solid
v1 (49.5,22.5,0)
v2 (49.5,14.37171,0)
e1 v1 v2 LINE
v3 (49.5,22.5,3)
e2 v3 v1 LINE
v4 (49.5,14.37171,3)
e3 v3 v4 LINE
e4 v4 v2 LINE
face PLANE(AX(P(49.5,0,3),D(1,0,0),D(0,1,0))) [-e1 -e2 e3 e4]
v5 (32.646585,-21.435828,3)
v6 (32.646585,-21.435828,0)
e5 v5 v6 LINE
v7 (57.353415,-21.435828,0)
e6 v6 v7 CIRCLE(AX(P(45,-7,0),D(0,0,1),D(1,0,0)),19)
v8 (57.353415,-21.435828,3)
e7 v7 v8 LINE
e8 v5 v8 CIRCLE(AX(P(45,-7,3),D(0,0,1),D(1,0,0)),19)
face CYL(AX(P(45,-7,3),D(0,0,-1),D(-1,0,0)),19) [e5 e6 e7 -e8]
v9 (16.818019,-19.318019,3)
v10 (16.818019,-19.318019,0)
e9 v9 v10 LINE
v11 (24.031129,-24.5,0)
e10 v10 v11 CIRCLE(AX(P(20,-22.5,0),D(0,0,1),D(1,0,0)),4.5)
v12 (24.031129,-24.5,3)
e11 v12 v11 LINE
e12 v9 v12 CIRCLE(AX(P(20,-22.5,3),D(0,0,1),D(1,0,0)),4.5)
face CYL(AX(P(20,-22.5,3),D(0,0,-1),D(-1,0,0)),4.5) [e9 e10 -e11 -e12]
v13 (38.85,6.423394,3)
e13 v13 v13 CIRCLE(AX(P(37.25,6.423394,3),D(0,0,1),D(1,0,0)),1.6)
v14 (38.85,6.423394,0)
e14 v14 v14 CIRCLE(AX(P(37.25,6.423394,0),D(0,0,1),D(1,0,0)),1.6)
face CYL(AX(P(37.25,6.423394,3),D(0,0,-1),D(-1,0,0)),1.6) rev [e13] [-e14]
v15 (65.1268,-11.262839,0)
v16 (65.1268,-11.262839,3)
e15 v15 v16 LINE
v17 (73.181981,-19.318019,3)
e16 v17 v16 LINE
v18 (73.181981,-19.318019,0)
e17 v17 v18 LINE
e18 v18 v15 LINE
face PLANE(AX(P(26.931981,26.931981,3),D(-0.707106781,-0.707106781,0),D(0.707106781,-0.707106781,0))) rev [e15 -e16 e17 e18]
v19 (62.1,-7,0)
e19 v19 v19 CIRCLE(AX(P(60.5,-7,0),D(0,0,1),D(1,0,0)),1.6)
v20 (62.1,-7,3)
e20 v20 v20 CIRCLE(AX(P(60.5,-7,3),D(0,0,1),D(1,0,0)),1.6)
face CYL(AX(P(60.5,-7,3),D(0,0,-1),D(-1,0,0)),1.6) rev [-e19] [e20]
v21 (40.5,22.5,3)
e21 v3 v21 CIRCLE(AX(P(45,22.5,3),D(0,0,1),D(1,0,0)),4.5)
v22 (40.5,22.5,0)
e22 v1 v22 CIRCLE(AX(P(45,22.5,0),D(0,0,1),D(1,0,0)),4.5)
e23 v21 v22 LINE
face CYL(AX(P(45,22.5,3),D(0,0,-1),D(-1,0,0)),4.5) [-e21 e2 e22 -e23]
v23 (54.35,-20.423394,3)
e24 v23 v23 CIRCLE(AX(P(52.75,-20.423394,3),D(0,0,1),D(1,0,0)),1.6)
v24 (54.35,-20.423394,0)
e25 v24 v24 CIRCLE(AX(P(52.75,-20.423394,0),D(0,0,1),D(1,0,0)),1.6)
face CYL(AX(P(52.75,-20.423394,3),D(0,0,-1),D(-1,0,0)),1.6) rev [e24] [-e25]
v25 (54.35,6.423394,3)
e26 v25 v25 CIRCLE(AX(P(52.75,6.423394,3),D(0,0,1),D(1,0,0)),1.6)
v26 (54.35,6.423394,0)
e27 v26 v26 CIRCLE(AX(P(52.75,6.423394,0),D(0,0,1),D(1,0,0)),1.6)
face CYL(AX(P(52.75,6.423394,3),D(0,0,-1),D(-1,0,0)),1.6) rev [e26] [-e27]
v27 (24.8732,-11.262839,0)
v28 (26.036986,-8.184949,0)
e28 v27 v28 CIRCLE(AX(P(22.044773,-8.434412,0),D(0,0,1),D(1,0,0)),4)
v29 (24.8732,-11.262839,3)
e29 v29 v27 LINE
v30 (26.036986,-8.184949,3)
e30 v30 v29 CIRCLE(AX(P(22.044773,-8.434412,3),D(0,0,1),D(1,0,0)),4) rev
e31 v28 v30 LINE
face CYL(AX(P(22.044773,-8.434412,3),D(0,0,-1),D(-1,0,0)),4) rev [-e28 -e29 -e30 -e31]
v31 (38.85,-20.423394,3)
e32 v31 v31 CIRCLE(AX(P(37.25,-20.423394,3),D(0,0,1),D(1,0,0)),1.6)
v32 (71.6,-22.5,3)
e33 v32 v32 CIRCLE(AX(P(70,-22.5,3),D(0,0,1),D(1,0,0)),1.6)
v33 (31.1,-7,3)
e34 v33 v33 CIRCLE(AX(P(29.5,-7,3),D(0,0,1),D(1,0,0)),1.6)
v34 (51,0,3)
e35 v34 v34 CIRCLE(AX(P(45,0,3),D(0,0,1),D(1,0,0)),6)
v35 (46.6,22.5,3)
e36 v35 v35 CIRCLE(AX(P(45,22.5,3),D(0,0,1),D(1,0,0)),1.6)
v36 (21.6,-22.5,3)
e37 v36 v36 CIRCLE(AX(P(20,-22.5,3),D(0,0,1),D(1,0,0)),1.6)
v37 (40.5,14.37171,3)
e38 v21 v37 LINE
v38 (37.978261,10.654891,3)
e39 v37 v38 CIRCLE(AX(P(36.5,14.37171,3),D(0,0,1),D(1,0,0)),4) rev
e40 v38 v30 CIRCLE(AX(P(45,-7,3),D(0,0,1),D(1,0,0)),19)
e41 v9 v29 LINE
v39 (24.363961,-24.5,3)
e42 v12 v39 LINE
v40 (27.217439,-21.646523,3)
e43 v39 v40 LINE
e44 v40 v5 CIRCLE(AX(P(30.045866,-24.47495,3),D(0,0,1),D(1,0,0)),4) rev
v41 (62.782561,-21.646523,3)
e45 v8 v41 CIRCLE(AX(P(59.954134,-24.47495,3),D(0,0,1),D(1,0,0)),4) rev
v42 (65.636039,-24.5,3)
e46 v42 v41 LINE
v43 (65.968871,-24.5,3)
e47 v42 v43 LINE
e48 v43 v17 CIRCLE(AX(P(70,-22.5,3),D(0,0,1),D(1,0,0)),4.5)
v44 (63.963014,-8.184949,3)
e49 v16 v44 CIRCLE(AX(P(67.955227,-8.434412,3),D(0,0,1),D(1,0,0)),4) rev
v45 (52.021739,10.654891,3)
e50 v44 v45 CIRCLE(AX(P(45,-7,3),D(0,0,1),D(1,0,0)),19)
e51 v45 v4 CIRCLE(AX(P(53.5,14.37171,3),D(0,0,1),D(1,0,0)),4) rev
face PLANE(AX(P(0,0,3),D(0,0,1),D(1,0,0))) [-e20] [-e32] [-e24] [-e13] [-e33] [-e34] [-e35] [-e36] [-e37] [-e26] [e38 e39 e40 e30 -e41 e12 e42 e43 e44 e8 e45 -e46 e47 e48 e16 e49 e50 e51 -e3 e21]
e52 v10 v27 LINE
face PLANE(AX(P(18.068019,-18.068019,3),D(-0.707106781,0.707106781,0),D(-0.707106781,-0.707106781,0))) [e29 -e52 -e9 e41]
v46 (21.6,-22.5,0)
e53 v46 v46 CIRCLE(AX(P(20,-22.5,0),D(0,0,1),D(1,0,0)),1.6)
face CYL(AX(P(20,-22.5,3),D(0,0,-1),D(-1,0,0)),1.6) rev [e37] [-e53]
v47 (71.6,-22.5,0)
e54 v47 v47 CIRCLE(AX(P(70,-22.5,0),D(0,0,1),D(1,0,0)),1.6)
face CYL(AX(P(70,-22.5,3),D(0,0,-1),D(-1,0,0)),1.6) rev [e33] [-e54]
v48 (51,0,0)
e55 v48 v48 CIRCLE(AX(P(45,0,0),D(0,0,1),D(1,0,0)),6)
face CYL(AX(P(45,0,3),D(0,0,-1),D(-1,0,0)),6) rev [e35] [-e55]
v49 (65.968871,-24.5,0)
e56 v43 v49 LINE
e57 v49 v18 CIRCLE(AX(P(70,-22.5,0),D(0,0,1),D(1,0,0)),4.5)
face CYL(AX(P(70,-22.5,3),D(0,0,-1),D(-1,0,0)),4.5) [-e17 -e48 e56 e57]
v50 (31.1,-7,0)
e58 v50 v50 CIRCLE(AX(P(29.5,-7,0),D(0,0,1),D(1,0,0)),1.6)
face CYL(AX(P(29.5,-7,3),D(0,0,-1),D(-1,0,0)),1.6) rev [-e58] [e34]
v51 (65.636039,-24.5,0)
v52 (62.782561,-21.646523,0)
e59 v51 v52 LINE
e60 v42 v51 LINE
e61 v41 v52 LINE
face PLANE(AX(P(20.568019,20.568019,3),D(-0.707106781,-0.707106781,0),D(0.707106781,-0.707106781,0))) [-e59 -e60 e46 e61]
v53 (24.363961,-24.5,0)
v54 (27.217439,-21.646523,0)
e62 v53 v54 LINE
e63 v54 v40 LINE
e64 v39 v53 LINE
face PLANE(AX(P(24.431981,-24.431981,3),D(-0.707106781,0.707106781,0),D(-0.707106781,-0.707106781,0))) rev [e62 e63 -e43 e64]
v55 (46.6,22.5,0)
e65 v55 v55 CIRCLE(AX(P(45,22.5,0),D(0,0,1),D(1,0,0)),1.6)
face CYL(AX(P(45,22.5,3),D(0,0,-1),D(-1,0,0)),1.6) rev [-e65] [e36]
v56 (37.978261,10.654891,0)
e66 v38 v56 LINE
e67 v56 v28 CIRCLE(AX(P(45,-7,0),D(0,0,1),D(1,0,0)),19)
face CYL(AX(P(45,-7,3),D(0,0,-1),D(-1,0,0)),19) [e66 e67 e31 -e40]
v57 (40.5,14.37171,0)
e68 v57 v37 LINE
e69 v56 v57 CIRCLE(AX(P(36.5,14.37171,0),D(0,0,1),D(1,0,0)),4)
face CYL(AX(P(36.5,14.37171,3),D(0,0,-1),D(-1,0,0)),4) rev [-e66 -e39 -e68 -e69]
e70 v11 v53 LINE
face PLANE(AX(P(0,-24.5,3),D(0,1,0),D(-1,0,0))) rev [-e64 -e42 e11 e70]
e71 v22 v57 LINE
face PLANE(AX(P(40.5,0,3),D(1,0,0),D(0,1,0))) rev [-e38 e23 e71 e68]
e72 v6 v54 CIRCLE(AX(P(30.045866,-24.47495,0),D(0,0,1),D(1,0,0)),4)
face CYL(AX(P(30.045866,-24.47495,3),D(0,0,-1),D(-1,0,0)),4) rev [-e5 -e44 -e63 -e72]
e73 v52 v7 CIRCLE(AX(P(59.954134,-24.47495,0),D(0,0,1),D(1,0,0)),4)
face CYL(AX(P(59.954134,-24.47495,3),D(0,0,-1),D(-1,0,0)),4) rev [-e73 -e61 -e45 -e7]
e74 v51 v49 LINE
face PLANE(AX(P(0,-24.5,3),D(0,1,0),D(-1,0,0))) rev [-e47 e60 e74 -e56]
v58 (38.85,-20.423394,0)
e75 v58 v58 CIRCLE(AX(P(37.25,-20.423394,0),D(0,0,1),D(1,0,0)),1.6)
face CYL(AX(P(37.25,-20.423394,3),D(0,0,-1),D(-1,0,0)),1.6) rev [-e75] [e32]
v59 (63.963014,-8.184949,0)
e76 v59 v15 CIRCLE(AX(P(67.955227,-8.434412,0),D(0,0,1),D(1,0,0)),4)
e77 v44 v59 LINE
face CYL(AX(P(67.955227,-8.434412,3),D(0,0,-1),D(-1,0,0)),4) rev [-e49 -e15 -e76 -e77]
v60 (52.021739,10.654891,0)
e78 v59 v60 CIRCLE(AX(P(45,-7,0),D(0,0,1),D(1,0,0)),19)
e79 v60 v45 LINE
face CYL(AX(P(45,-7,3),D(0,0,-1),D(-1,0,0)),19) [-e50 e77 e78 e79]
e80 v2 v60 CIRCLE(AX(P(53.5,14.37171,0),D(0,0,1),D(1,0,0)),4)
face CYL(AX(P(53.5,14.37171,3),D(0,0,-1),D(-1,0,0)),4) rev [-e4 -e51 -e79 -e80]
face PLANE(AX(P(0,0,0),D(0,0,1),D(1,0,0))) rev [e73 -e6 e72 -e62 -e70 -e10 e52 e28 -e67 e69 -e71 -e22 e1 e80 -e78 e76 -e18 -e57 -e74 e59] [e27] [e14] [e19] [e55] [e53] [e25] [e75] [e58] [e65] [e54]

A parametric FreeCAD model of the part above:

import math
import FreeCAD as App
import Part
import Sketcher
from FreeCAD import Vector


def edges_at(feature, points):
    """Names of the edges that pass closest to the given points."""
    edges = feature.Shape.Edges
    near = lambda p: min(range(len(edges)), key=lambda i: edges[i].distToShape(Part.Vertex(*p))[0])
    return sorted({f"Edge{near(p) + 1}" for p in points})

doc = App.newDocument("Part")
body = doc.addObject("PartDesign::Body", "Body")

# Sketch on XY plane
sketch1 = doc.addObject("Sketcher::SketchObject", "Sketch")
body.addObject(sketch1)
sketch1.AttachmentSupport = (doc.XY_Plane, [""])
sketch1.MapMode = "FlatFace"
sketch1.addGeometry(Part.ArcOfCircle(Part.Circle(Vector(45, -7, 0), Vector(0, 0, 1), 19), math.radians(0), math.radians(76)), False)
sketch1.addGeometry(Part.LineSegment(Vector(49.5, 11.46, 0), Vector(49.5, 22.5, 0)), False)
sketch1.addGeometry(Part.ArcOfCircle(Part.Circle(Vector(45, 22.5, 0), Vector(0, 0, 1), 4.5), math.radians(0), math.radians(26)), False)
sketch1.addGeometry(Part.ArcOfCircle(Part.Circle(Vector(45, 22.5, 0), Vector(0, 0, 1), 4.5), math.radians(26), math.radians(154)), False)
sketch1.addGeometry(Part.ArcOfCircle(Part.Circle(Vector(45, 22.5, 0), Vector(0, 0, 1), 4.5), math.radians(154), math.radians(180)), False)
sketch1.addGeometry(Part.LineSegment(Vector(40.5, 22.5, 0), Vector(40.5, 11.46, 0)), False)
sketch1.addGeometry(Part.ArcOfCircle(Part.Circle(Vector(45, -7, 0), Vector(0, 0, 1), 19), math.radians(104), math.radians(189)), False)
sketch1.addGeometry(Part.LineSegment(Vector(26.22, -9.91, 0), Vector(16.82, -19.32, 0)), False)
sketch1.addGeometry(Part.ArcOfCircle(Part.Circle(Vector(20, -22.5, 0), Vector(0, 0, 1), 4.5), math.radians(135), math.radians(180)), False)
sketch1.addGeometry(Part.ArcOfCircle(Part.Circle(Vector(20, -22.5, 0), Vector(0, 0, 1), 4.5), math.radians(180), math.radians(206)), False)
sketch1.addGeometry(Part.ArcOfCircle(Part.Circle(Vector(20, -22.5, 0), Vector(0, 0, 1), 4.5), math.radians(-154), math.radians(-45)), False)
sketch1.addGeometry(Part.ArcOfCircle(Part.Circle(Vector(20, -22.5, 0), Vector(0, 0, 1), 4.5), math.radians(-45), math.radians(-26.39)), False)
sketch1.addGeometry(Part.LineSegment(Vector(24.03, -24.5, 0), Vector(24.36, -24.5, 0)), False)
sketch1.addGeometry(Part.LineSegment(Vector(24.36, -24.5, 0), Vector(30.09, -18.78, 0)), False)
sketch1.addGeometry(Part.ArcOfCircle(Part.Circle(Vector(45, -7, 0), Vector(0, 0, 1), 19), math.radians(-142), math.radians(-113)), False)
sketch1.addGeometry(Part.ArcOfCircle(Part.Circle(Vector(45, -7, 0), Vector(0, 0, 1), 19), math.radians(-113), math.radians(-67)), False)
sketch1.addGeometry(Part.ArcOfCircle(Part.Circle(Vector(45, -7, 0), Vector(0, 0, 1), 19), math.radians(-67), math.radians(-38)), False)
sketch1.addGeometry(Part.LineSegment(Vector(59.91, -18.78, 0), Vector(65.64, -24.5, 0)), False)
sketch1.addGeometry(Part.LineSegment(Vector(65.64, -24.5, 0), Vector(65.97, -24.5, 0)), False)
sketch1.addGeometry(Part.ArcOfCircle(Part.Circle(Vector(70, -22.5, 0), Vector(0, 0, 1), 4.5), math.radians(-153.61), math.radians(-135)), False)
sketch1.addGeometry(Part.ArcOfCircle(Part.Circle(Vector(70, -22.5, 0), Vector(0, 0, 1), 4.5), math.radians(-135), math.radians(-26)), False)
sketch1.addGeometry(Part.ArcOfCircle(Part.Circle(Vector(70, -22.5, 0), Vector(0, 0, 1), 4.5), math.radians(-26), math.radians(0)), False)
sketch1.addGeometry(Part.ArcOfCircle(Part.Circle(Vector(70, -22.5, 0), Vector(0, 0, 1), 4.5), math.radians(0), math.radians(45)), False)
sketch1.addGeometry(Part.LineSegment(Vector(73.18, -19.32, 0), Vector(63.78, -9.91, 0)), False)
sketch1.addGeometry(Part.ArcOfCircle(Part.Circle(Vector(45, -7, 0), Vector(0, 0, 1), 19), math.radians(-8.81), math.radians(0)), False)
sketch1.addGeometry(Part.Circle(Vector(37.25, -20.42, 0), Vector(0, 0, 1), 1.6), False)
sketch1.addGeometry(Part.Circle(Vector(52.75, -20.42, 0), Vector(0, 0, 1), 1.6), False)
sketch1.addGeometry(Part.Circle(Vector(29.5, -7, 0), Vector(0, 0, 1), 1.6), False)
sketch1.addGeometry(Part.Circle(Vector(37.25, 6.42, 0), Vector(0, 0, 1), 1.6), False)
sketch1.addGeometry(Part.Circle(Vector(45, 0, 0), Vector(0, 0, 1), 6), False)
sketch1.addGeometry(Part.Circle(Vector(60.5, -7, 0), Vector(0, 0, 1), 1.6), False)
sketch1.addGeometry(Part.Circle(Vector(52.75, 6.42, 0), Vector(0, 0, 1), 1.6), False)
sketch1.addGeometry(Part.Circle(Vector(45, 22.5, 0), Vector(0, 0, 1), 1.6), False)
sketch1.addGeometry(Part.Circle(Vector(70, -22.5, 0), Vector(0, 0, 1), 1.6), False)
sketch1.addGeometry(Part.Circle(Vector(20, -22.5, 0), Vector(0, 0, 1), 1.6), False)
sketch1.addConstraint(Sketcher.Constraint("Coincident", 0, 2, 1, 1))
sketch1.addConstraint(Sketcher.Constraint("Tangent", 1, 2, 2, 1))
sketch1.addConstraint(Sketcher.Constraint("Tangent", 2, 2, 3, 1))
sketch1.addConstraint(Sketcher.Constraint("Tangent", 3, 2, 4, 1))
sketch1.addConstraint(Sketcher.Constraint("Tangent", 4, 2, 5, 1))
sketch1.addConstraint(Sketcher.Constraint("Coincident", 5, 2, 6, 1))
sketch1.addConstraint(Sketcher.Constraint("Coincident", 6, 2, 7, 1))
sketch1.addConstraint(Sketcher.Constraint("Tangent", 7, 2, 8, 1))
sketch1.addConstraint(Sketcher.Constraint("Tangent", 8, 2, 9, 1))
sketch1.addConstraint(Sketcher.Constraint("Tangent", 9, 2, 10, 1))
sketch1.addConstraint(Sketcher.Constraint("Tangent", 10, 2, 11, 1))
sketch1.addConstraint(Sketcher.Constraint("Coincident", 11, 2, 12, 1))
sketch1.addConstraint(Sketcher.Constraint("Coincident", 12, 2, 13, 1))
sketch1.addConstraint(Sketcher.Constraint("Coincident", 13, 2, 14, 1))
sketch1.addConstraint(Sketcher.Constraint("Tangent", 14, 2, 15, 1))
sketch1.addConstraint(Sketcher.Constraint("Tangent", 15, 2, 16, 1))
sketch1.addConstraint(Sketcher.Constraint("Coincident", 16, 2, 17, 1))
sketch1.addConstraint(Sketcher.Constraint("Coincident", 17, 2, 18, 1))
sketch1.addConstraint(Sketcher.Constraint("Coincident", 18, 2, 19, 1))
sketch1.addConstraint(Sketcher.Constraint("Tangent", 19, 2, 20, 1))
sketch1.addConstraint(Sketcher.Constraint("Tangent", 20, 2, 21, 1))
sketch1.addConstraint(Sketcher.Constraint("Tangent", 21, 2, 22, 1))
sketch1.addConstraint(Sketcher.Constraint("Tangent", 22, 2, 23, 1))
sketch1.addConstraint(Sketcher.Constraint("Coincident", 23, 2, 24, 1))
sketch1.addConstraint(Sketcher.Constraint("Tangent", 24, 2, 0, 1))
sketch1.addConstraint(Sketcher.Constraint("Vertical", 1))
sketch1.addConstraint(Sketcher.Constraint("Vertical", 5))
sketch1.addConstraint(Sketcher.Constraint("Horizontal", 12))
sketch1.addConstraint(Sketcher.Constraint("Horizontal", 18))
sketch1.addConstraint(Sketcher.Constraint("Coincident", 4, 3, 2, 3))
sketch1.addConstraint(Sketcher.Constraint("Coincident", 6, 3, 0, 3))
sketch1.addConstraint(Sketcher.Constraint("Coincident", 10, 3, 8, 3))
sketch1.addConstraint(Sketcher.Constraint("Coincident", 14, 3, 0, 3))
sketch1.addConstraint(Sketcher.Constraint("Coincident", 16, 3, 0, 3))
sketch1.addConstraint(Sketcher.Constraint("Coincident", 21, 3, 19, 3))
sketch1.addConstraint(Sketcher.Constraint("Coincident", 32, 3, 2, 3))
sketch1.addConstraint(Sketcher.Constraint("Coincident", 33, 3, 19, 3))
sketch1.addConstraint(Sketcher.Constraint("Coincident", 34, 3, 8, 3))
sketch1.addConstraint(Sketcher.Constraint("Equal", 0, 6))
sketch1.addConstraint(Sketcher.Constraint("Equal", 4, 8))
sketch1.addConstraint(Sketcher.Constraint("Equal", 10, 11))
sketch1.addConstraint(Sketcher.Constraint("Equal", 6, 14))
sketch1.addConstraint(Sketcher.Constraint("Equal", 11, 19))
sketch1.addConstraint(Sketcher.Constraint("Equal", 21, 22))
sketch1.addConstraint(Sketcher.Constraint("Equal", 16, 24))
sketch1.addConstraint(Sketcher.Constraint("Equal", 25, 26))
sketch1.addConstraint(Sketcher.Constraint("Equal", 26, 27))
sketch1.addConstraint(Sketcher.Constraint("Equal", 27, 28))
sketch1.addConstraint(Sketcher.Constraint("Equal", 28, 30))
sketch1.addConstraint(Sketcher.Constraint("Equal", 30, 31))
sketch1.addConstraint(Sketcher.Constraint("Equal", 31, 32))
sketch1.addConstraint(Sketcher.Constraint("Equal", 32, 33))
sketch1.addConstraint(Sketcher.Constraint("Equal", 33, 34))
sketch1.addConstraint(Sketcher.Constraint("PointOnObject", 29, 3, -1))
sketch1.addConstraint(Sketcher.Constraint("Parallel", 7, 13))
sketch1.addConstraint(Sketcher.Constraint("Perpendicular", 13, 17))
sketch1.addConstraint(Sketcher.Constraint("Parallel", 17, 23))
sketch1.addConstraint(Sketcher.Constraint("Horizontal", 11, 3, 19, 3))
sketch1.addConstraint(Sketcher.Constraint("Horizontal", 25, 3, 26, 3))
sketch1.addConstraint(Sketcher.Constraint("Horizontal", 24, 3, 27, 3))
sketch1.addConstraint(Sketcher.Constraint("Horizontal", 27, 3, 30, 3))
sketch1.addConstraint(Sketcher.Constraint("Horizontal", 28, 3, 31, 3))
sketch1.addConstraint(Sketcher.Constraint("Horizontal", 2, 2, 3, 2))
sketch1.addConstraint(Sketcher.Constraint("Horizontal", 0, 2, 5, 2))
sketch1.addConstraint(Sketcher.Constraint("Horizontal", 34, 3, 8, 2))
sketch1.addConstraint(Sketcher.Constraint("Horizontal", 9, 2, 11, 2))
sketch1.addConstraint(Sketcher.Constraint("Horizontal", 12, 2, 14, 2))
sketch1.addConstraint(Sketcher.Constraint("Horizontal", 14, 2, 15, 2))
sketch1.addConstraint(Sketcher.Constraint("Horizontal", 13, 2, 16, 2))
sketch1.addConstraint(Sketcher.Constraint("Horizontal", 15, 2, 17, 2))
sketch1.addConstraint(Sketcher.Constraint("Horizontal", 10, 2, 19, 2))
sketch1.addConstraint(Sketcher.Constraint("Horizontal", 18, 2, 20, 2))
sketch1.addConstraint(Sketcher.Constraint("Horizontal", 8, 2, 21, 2))
sketch1.addConstraint(Sketcher.Constraint("Horizontal", 7, 2, 22, 2))
sketch1.addConstraint(Sketcher.Constraint("Horizontal", 6, 2, 23, 2))
sketch1.addConstraint(Sketcher.Constraint("Horizontal", 30, 3, 24, 2))
sketch1.addConstraint(Sketcher.Constraint("Vertical", 25, 3, 28, 3))
sketch1.addConstraint(Sketcher.Constraint("Vertical", 24, 3, 29, 3))
sketch1.addConstraint(Sketcher.Constraint("Vertical", 26, 3, 31, 3))
sketch1.addConstraint(Sketcher.Constraint("Diameter", 29, 12.0))
sketch1.addConstraint(Sketcher.Constraint("Radius", 0, 19.0))
sketch1.addConstraint(Sketcher.Constraint("Diameter", 25, 3.2))
sketch1.addConstraint(Sketcher.Constraint("Radius", 2, 4.5))
sketch1.addConstraint(Sketcher.Constraint("DistanceX", -1, 1, 0, 3, 45.0))
sketch1.addConstraint(Sketcher.Constraint("DistanceY", 0, 3, -1, 1, 7.0))
sketch1.addConstraint(Sketcher.Constraint("DistanceX", -1, 1, 8, 3, 20.0))
sketch1.addConstraint(Sketcher.Constraint("DistanceY", 8, 3, 4, 3, 45.0))
sketch1.addConstraint(Sketcher.Constraint("DistanceY", 1, 2, 2, 2, 2.0))
sketch1.addConstraint(Sketcher.Constraint("DistanceY", 9, 2, 8, 2, 2.0))
sketch1.addConstraint(Sketcher.Constraint("DistanceY", -1, 1, 2, 3, 22.5))
sketch1.addConstraint(Sketcher.Constraint("DistanceX", -1, 1, 27, 3, 29.5))
sketch1.addConstraint(Sketcher.Constraint("DistanceX", -1, 1, 30, 3, 60.5))
sketch1.addConstraint(Sketcher.Constraint("DistanceX", 28, 3, 31, 3, 15.5))
sketch1.addConstraint(Sketcher.Constraint("DistanceX", -1, 1, 25, 3, 37.25))
sketch1.addConstraint(Sketcher.Constraint("Distance", 13, 8.0961))
sketch1.addConstraint(Sketcher.Constraint("DistanceY", 25, 3, 13, 2, 1.648201))
sketch1.addConstraint(Sketcher.Constraint("DistanceX", -1, 1, 10, 2, 23.181981))
sketch1.addConstraint(Sketcher.Constraint("DistanceY", 31, 3, 0, 2, 5.036021))
pad1 = doc.addObject("PartDesign::Pad", "Pad")
body.addObject(pad1)
pad1.Profile = sketch1
pad1.Length = 3
doc.recompute()

fillet = doc.addObject("PartDesign::Fillet", "Fillet")
body.addObject(fillet)
fillet.Base = (pad1, edges_at(pad1, [
    (59.911, -18.775, 1.5),
    (30.089, -18.775, 1.5),
    (26.224, -9.912, 1.5),
    (40.5, 11.459, 1.5),
    (49.5, 11.459, 1.5),
    (63.776, -9.912, 1.5),
]))
fillet.Radius = 4

doc.recompute()
